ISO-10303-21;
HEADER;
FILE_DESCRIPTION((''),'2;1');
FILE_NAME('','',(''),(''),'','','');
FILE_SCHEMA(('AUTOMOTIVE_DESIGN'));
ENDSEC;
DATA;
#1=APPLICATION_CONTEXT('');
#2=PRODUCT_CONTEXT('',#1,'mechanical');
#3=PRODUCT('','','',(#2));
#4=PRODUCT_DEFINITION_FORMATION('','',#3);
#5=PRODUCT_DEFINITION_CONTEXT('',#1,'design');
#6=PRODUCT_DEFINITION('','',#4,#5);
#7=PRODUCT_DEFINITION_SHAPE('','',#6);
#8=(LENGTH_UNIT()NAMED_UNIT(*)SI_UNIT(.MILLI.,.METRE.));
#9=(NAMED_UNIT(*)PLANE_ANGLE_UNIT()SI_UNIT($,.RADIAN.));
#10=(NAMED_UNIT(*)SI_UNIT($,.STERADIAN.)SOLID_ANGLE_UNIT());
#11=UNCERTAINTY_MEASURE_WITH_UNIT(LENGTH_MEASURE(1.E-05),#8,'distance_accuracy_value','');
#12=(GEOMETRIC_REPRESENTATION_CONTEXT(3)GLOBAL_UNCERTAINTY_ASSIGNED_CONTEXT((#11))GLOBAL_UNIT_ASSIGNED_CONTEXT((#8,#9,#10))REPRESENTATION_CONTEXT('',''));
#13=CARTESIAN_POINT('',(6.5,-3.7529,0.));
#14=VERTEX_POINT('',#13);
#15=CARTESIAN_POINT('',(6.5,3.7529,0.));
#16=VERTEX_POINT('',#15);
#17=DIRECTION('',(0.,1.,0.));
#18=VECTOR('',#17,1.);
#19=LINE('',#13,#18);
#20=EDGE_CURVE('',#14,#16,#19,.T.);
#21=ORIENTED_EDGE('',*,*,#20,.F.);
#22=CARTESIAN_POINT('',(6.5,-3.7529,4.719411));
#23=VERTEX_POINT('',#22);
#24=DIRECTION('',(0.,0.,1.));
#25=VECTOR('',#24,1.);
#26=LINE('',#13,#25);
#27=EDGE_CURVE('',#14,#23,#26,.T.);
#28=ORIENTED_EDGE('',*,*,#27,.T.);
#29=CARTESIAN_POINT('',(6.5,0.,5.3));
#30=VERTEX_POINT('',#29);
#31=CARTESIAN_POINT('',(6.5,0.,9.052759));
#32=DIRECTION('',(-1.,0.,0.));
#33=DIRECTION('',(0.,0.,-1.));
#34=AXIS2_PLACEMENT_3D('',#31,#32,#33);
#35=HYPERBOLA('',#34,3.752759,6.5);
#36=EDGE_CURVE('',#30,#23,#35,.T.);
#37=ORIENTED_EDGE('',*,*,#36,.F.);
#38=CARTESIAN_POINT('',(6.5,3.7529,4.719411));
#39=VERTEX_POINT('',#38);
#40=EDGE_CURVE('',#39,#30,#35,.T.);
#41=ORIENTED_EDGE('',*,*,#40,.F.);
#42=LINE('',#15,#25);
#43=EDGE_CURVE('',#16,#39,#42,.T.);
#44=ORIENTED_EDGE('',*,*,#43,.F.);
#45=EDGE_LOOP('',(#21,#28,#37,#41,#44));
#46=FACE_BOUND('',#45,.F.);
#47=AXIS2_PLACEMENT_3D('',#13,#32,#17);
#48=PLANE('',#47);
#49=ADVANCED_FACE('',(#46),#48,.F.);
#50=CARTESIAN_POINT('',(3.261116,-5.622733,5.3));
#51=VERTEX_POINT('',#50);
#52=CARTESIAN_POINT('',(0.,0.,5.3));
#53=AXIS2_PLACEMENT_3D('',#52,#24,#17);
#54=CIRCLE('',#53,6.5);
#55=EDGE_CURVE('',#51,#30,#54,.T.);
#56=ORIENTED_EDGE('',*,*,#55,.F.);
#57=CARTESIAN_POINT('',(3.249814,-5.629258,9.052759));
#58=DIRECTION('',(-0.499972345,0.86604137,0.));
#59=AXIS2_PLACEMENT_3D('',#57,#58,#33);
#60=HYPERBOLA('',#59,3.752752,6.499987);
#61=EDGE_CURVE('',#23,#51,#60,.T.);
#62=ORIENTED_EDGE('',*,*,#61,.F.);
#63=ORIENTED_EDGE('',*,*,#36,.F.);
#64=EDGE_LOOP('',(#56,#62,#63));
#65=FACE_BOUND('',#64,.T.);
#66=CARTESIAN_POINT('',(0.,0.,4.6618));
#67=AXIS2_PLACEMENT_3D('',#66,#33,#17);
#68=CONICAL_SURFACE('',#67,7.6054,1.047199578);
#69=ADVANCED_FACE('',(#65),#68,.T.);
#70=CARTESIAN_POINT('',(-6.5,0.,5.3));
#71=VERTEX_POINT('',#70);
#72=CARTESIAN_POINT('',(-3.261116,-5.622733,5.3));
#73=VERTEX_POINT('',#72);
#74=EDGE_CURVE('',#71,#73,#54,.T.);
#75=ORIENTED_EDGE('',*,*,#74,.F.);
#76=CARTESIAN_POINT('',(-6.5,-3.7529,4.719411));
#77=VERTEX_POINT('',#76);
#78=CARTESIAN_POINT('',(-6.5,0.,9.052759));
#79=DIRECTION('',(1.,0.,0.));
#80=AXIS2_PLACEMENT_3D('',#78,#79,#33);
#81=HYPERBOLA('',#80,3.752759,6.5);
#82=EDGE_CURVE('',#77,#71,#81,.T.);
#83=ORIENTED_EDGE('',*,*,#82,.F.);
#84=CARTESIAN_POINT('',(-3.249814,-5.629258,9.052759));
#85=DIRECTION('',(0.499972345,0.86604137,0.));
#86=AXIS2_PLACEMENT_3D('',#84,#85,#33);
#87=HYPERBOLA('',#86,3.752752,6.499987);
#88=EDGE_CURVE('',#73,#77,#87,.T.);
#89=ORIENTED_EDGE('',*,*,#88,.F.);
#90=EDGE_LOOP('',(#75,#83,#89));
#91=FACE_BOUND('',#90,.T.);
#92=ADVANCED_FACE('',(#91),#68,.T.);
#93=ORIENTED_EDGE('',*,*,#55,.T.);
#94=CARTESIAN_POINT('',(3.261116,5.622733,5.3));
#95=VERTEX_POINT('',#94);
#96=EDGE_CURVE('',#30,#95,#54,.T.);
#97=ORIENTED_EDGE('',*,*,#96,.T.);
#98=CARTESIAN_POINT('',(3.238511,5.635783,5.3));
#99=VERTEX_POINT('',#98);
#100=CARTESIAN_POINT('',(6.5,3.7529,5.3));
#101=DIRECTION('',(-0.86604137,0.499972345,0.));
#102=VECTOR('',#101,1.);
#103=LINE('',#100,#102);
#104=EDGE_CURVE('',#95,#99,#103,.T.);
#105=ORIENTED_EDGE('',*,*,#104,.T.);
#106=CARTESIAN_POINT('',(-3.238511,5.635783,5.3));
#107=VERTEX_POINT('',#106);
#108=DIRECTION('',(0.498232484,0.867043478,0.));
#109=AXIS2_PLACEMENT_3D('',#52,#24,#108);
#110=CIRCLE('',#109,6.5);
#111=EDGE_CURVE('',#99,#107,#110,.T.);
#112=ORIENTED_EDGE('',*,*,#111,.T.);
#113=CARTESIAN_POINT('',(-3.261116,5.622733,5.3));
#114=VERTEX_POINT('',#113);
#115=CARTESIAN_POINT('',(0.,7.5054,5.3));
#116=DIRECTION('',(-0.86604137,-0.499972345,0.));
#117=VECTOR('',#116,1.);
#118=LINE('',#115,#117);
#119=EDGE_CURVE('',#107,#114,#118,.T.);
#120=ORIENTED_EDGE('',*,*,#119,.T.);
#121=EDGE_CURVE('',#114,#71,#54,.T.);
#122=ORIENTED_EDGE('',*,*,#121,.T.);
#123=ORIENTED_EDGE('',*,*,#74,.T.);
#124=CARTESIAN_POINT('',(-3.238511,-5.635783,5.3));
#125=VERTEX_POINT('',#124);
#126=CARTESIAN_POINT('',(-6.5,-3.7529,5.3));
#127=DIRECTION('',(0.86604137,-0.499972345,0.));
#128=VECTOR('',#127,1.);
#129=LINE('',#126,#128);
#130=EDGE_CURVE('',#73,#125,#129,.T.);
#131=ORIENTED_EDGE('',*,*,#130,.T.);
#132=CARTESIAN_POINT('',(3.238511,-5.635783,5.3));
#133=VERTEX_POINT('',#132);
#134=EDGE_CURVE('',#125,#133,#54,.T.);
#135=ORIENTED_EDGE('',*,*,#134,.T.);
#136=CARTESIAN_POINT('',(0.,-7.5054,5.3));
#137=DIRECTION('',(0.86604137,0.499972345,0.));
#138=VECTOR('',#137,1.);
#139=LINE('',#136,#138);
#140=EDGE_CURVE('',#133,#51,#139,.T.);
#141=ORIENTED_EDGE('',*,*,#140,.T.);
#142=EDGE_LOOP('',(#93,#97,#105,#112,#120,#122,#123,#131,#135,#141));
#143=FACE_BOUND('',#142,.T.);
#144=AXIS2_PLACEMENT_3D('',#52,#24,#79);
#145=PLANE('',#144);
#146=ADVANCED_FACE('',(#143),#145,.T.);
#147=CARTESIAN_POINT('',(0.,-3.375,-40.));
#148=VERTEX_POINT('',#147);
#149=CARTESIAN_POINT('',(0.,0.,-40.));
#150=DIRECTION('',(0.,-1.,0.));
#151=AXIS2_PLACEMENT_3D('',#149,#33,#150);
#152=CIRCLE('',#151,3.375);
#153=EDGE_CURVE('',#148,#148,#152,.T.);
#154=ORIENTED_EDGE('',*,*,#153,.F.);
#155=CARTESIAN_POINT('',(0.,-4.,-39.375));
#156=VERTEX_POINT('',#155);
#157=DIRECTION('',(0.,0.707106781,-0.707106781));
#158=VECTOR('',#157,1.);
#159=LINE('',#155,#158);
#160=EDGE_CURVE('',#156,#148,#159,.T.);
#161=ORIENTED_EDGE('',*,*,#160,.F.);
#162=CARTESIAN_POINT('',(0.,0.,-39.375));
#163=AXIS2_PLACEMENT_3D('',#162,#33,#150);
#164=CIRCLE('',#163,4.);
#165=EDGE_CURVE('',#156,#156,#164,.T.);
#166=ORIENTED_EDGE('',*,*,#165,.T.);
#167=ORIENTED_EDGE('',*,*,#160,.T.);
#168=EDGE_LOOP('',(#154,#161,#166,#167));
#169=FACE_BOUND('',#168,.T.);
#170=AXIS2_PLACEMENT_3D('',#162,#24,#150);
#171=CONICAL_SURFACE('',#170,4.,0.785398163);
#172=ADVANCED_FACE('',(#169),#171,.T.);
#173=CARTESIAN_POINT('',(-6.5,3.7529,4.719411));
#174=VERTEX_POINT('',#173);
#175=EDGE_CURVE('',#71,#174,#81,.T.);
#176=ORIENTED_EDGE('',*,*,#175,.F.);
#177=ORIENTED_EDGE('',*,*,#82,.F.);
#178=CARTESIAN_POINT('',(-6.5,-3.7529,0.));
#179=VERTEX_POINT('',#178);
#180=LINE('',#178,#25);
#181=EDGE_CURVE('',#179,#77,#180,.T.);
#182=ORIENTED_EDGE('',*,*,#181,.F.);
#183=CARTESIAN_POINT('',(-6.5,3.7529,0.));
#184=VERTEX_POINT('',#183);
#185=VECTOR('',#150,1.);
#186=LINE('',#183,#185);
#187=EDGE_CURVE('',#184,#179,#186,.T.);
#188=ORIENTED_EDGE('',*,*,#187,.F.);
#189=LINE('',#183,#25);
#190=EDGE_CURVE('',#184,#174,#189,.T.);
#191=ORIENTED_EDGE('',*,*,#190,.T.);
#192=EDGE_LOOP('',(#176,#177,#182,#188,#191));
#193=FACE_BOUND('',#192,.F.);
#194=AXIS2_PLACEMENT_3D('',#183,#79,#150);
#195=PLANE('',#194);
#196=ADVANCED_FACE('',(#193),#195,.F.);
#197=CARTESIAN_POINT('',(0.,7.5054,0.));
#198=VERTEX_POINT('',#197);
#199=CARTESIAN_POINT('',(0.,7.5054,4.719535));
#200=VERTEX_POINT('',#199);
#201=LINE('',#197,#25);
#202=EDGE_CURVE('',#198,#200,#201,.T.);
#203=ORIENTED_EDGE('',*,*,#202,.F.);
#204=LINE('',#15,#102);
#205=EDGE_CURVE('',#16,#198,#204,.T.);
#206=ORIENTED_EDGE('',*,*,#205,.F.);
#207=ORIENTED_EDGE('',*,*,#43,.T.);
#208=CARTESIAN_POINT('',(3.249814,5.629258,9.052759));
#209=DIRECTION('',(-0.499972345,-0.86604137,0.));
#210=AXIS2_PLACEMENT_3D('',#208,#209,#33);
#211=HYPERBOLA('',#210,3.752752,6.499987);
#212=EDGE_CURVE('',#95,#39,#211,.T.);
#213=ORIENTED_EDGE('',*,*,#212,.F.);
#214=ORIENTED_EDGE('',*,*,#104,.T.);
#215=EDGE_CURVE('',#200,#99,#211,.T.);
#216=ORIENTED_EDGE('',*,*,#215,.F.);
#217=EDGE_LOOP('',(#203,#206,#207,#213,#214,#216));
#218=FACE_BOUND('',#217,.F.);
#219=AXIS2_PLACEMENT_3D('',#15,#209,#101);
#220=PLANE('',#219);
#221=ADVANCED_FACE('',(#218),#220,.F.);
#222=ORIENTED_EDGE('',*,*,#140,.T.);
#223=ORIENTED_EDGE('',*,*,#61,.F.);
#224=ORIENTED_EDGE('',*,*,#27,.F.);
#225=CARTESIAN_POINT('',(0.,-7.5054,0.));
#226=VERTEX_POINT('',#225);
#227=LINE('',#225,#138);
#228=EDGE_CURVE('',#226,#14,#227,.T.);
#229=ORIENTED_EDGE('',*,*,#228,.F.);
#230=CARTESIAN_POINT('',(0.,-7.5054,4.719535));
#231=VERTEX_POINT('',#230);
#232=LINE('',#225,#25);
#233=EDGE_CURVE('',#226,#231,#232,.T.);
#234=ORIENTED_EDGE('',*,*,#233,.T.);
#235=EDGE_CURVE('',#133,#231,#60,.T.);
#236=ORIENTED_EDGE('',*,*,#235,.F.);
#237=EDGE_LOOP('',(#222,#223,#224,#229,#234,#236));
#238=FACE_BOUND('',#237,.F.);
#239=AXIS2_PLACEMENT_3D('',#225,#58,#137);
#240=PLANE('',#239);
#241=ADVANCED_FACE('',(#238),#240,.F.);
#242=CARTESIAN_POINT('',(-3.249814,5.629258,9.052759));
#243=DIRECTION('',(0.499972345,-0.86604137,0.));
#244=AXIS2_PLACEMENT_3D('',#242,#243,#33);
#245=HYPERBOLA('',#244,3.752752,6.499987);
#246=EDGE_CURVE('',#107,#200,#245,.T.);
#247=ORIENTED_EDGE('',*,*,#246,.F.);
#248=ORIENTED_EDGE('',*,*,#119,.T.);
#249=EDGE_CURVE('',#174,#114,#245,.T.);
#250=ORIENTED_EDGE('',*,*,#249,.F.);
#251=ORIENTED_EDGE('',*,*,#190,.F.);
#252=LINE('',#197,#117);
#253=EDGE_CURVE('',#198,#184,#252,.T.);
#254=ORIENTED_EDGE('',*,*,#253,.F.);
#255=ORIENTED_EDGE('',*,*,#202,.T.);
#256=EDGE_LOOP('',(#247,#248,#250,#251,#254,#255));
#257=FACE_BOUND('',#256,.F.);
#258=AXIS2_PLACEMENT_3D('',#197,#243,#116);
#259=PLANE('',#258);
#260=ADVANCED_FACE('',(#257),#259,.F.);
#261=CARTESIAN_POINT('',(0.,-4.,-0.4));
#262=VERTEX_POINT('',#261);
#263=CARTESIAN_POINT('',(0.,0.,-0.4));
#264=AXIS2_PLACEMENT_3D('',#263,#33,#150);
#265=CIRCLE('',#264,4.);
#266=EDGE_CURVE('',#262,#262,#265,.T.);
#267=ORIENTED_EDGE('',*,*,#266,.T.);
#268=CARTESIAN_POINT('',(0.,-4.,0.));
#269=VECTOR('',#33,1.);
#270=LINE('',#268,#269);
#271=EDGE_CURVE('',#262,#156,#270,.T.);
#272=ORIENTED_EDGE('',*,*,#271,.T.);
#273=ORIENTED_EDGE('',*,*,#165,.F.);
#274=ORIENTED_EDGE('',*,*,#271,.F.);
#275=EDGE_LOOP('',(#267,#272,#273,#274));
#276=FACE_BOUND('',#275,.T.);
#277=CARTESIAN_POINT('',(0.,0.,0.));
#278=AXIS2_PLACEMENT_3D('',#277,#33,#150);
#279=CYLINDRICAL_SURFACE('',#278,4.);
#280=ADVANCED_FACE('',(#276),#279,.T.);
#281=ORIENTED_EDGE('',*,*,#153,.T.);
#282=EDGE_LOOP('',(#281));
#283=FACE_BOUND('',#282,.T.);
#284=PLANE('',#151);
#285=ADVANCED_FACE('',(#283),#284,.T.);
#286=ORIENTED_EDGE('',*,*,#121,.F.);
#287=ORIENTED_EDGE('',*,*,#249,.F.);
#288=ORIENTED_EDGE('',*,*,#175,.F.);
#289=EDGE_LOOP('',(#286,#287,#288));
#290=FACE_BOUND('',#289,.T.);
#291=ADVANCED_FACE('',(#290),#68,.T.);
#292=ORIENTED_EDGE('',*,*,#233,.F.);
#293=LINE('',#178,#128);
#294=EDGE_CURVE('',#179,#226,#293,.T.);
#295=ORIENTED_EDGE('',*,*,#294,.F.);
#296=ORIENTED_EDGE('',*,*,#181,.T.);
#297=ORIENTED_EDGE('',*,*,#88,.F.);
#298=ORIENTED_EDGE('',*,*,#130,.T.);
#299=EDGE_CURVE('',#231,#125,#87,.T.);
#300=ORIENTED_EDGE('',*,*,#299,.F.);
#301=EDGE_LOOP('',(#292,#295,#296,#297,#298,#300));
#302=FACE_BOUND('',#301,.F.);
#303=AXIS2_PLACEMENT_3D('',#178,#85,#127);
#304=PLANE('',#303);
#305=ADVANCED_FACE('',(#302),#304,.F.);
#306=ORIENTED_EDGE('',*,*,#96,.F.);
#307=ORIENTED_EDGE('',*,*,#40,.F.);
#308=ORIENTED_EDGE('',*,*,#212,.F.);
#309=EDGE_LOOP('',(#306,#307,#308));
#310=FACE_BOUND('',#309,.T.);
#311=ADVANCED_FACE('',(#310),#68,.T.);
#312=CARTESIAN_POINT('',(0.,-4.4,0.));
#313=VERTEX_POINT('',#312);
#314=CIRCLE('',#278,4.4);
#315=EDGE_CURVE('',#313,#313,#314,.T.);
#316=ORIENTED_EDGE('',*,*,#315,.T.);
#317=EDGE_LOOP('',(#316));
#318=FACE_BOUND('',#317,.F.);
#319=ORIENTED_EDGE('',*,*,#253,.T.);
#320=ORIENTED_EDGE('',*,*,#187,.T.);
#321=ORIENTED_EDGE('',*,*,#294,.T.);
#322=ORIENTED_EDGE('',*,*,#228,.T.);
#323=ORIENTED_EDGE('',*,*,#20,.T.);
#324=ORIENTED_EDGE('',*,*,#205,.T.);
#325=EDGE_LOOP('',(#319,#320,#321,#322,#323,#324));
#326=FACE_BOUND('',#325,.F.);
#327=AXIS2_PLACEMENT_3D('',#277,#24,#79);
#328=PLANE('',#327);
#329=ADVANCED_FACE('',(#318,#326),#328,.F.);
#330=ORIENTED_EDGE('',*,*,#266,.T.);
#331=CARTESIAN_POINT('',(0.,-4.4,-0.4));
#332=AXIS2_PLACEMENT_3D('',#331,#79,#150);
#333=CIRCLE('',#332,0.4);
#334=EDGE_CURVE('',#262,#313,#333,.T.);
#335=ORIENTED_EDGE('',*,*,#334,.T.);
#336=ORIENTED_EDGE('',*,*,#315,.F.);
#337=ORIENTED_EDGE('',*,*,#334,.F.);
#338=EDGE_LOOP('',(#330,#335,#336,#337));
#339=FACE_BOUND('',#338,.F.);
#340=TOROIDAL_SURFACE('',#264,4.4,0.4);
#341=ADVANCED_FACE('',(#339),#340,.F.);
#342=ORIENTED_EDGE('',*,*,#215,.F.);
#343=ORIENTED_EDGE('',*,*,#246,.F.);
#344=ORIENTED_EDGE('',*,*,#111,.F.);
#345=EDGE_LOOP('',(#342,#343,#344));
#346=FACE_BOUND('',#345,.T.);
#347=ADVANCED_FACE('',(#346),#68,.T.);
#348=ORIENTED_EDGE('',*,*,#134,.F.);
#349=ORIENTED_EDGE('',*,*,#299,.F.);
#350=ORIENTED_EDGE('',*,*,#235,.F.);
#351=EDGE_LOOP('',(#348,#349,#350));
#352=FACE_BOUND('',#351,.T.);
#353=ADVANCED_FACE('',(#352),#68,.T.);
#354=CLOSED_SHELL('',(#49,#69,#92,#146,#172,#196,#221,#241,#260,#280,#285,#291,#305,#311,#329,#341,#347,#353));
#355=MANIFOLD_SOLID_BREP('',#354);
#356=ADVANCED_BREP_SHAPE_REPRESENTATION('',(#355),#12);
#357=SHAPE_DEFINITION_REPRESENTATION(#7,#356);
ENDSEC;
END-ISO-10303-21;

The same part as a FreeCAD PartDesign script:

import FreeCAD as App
import Part
import Sketcher
Q = App.Units.Quantity


def edges_at(feature, points):
    """Names of the edges that pass closest to the given points."""
    edges = feature.Shape.Edges
    near = lambda p: min(range(len(edges)), key=lambda i: edges[i].distToShape(Part.Vertex(*p))[0])
    return sorted({f"Edge{near(p) + 1}" for p in points})


def add_polygon(sketch, points):
    """Adds a closed chain of lines whose ends are joined by coincident constraints."""
    first, n = sketch.GeometryCount, len(points)
    for a, b in zip(points, points[1:] + points[:1]):
        sketch.addGeometry(Part.LineSegment(App.Vector(*a, 0), App.Vector(*b, 0)), False)
    for i in range(n):
        sketch.addConstraint(Sketcher.Constraint("Coincident", first + i, 2, first + (i + 1) % n, 1))

doc = App.newDocument("Part")
params = doc.addObject("Spreadsheet::Sheet", "Params")
for row, (alias, value) in enumerate([
    ("pad1_length", "5.3 mm"),
    ("groove_angle", "360 deg"),
    ("sketch3_width", "4 mm"),
    ("sketch3_height", "40 mm"),
    ("revolution_angle", "360 deg"),
    ("chamfer_size", "0.625 mm"),
    ("fillet_radius", "0.4 mm"),
], start=1):
    params.set(f"A{row}", alias)
    params.set(f"B{row}", "=" + value)
    params.setAlias(f"B{row}", alias)

body = doc.addObject("PartDesign::Body", "Body")

# Sketch on XY plane
sketch1 = body.newObject("Sketcher::SketchObject", "Sketch")
sketch1.AttachmentSupport = (doc.getObject("XY_Plane"), [""])
sketch1.MapMode = "FlatFace"
add_polygon(sketch1, [(0, 8), (-6, 4), (-6, -4), (0, -8), (6, -4), (6, 4)])  # lines 0-5
sketch1.addConstraint(Sketcher.Constraint("Vertical", 1))
sketch1.addConstraint(Sketcher.Constraint("Vertical", 4))
sketch1.addConstraint(Sketcher.Constraint("Symmetric", 0, 2, 3, 2, -1, 1))
sketch1.addConstraint(Sketcher.Constraint("Symmetric", 2, 2, 5, 2, -1, 1))
sketch1.addConstraint(Sketcher.Constraint("PointOnObject", 2, 2, -2))
sketch1.addConstraint(Sketcher.Constraint("Parallel", 2, 5))
sketch1.addConstraint(Sketcher.Constraint("Horizontal", 1, 2, 3, 2))
sketch1.addConstraint(Sketcher.Constraint("DistanceX", 1, 2, 3, 2, 13.0))
sketch1.addConstraint(Sketcher.Constraint("DistanceY", 1, 2, 1, 1, 7.5058))
sketch1.addConstraint(Sketcher.Constraint("Distance", 0, 7.5054))
pad1 = body.newObject("PartDesign::Pad", "Pad")
pad1.Profile = sketch1
pad1.setExpression("Length", "Params.pad1_length")

# Sketch on YZ plane
sketch2 = body.newObject("Sketcher::SketchObject", "Sketch001")
sketch2.AttachmentSupport = (doc.getObject("YZ_Plane"), [""])
sketch2.MapMode = "FlatFace"
add_polygon(sketch2, [(6.5, 5.3), (7.6, 4.7), (7.6, 5.3)])  # lines 0-2
sketch2.addConstraint(Sketcher.Constraint("Vertical", 1))
sketch2.addConstraint(Sketcher.Constraint("Horizontal", 2))
sketch2.addConstraint(Sketcher.Constraint("DistanceX", -1, 1, 2, 2, 6.5))
sketch2.addConstraint(Sketcher.Constraint("Angle", 0, Q("-30 deg")))
sketch2.addConstraint(Sketcher.Constraint("DistanceY", -1, 1, 1, 2, 5.3))
sketch2.addConstraint(Sketcher.Constraint("DistanceX", 2, 2, 2, 1, 1.1054))
groove = body.newObject("PartDesign::Groove", "Groove")
groove.Profile = sketch2
groove.ReferenceAxis = (sketch2, ["V_Axis"])
groove.setExpression("Angle", "Params.groove_angle")

# Sketch on YZ plane
sketch3 = body.newObject("Sketcher::SketchObject", "Sketch002")
sketch3.AttachmentSupport = (doc.getObject("YZ_Plane"), [""])
sketch3.MapMode = "FlatFace"
add_polygon(sketch3, [(-4, -40), (0, -40), (0, 0), (-4, 0)])  # lines 0-3
sketch3.addConstraint(Sketcher.Constraint("Horizontal", 0))
sketch3.addConstraint(Sketcher.Constraint("Vertical", 1))
sketch3.addConstraint(Sketcher.Constraint("Horizontal", 2))
sketch3.addConstraint(Sketcher.Constraint("Vertical", 3))
sketch3.addConstraint(Sketcher.Constraint("Coincident", 1, 2, -1, 1))
sketch3.addConstraint(Sketcher.Constraint("DistanceX", 0, 1, 0, 2, 4.0))
sketch3.addConstraint(Sketcher.Constraint("DistanceY", 1, 1, 1, 2, 40.0))
sketch3.setExpression("Constraints[9]", "Params.sketch3_width")
sketch3.setExpression("Constraints[10]", "Params.sketch3_height")
revolution = body.newObject("PartDesign::Revolution", "Revolution")
revolution.Profile = sketch3
revolution.ReferenceAxis = (sketch3, ["V_Axis"])
revolution.setExpression("Angle", "Params.revolution_angle")
doc.recompute()

chamfer = body.newObject("PartDesign::Chamfer", "Chamfer")
chamfer.Base = (revolution, edges_at(revolution, [(0, 4, -40)]))
chamfer.setExpression("Size", "Params.chamfer_size")
doc.recompute()

fillet = body.newObject("PartDesign::Fillet", "Fillet")
fillet.Base = (chamfer, edges_at(chamfer, [(0, 4, 0)]))
fillet.setExpression("Radius", "Params.fillet_radius")

doc.recompute()
